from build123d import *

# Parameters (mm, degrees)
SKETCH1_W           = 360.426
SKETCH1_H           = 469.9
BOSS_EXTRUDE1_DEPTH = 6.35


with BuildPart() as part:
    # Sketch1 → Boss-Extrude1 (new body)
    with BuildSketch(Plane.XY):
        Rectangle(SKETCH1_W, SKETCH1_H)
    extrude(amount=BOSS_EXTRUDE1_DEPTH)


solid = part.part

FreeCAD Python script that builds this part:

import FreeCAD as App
import Part
import Sketcher

V = App.Vector
Q = App.Units.Quantity

doc = App.newDocument("Part")
body = doc.addObject("PartDesign::Body", "Body")

# Sketch on XY plane
sketch1 = body.newObject("Sketcher::SketchObject", "Sketch")
sketch1.AttachmentSupport = (doc.getObject("XY_Plane"), [""])
sketch1.MapMode = "FlatFace"
sketch1.addGeometry(Part.LineSegment(V(-180, 235, 0), V(-180, -235, 0)), False)
sketch1.addGeometry(Part.LineSegment(V(-180, -235, 0), V(180, -235, 0)), False)
sketch1.addGeometry(Part.LineSegment(V(180, -235, 0), V(180, 235, 0)), False)
sketch1.addGeometry(Part.LineSegment(V(180, 235, 0), V(-180, 235, 0)), False)
sketch1.addConstraint(Sketcher.Constraint("Coincident", 0, 2, 1, 1))
sketch1.addConstraint(Sketcher.Constraint("Coincident", 1, 2, 2, 1))
sketch1.addConstraint(Sketcher.Constraint("Coincident", 2, 2, 3, 1))
sketch1.addConstraint(Sketcher.Constraint("Coincident", 3, 2, 0, 1))
sketch1.addConstraint(Sketcher.Constraint("Vertical", 0))
sketch1.addConstraint(Sketcher.Constraint("Horizontal", 1))
sketch1.addConstraint(Sketcher.Constraint("Vertical", 2))
sketch1.addConstraint(Sketcher.Constraint("Horizontal", 3))
sketch1.addConstraint(Sketcher.Constraint("Symmetric", 0, 2, 2, 2, -1, 1))
sketch1.addConstraint(Sketcher.Constraint("DistanceY", 0, 2, 0, 1, Q("18.5 in")))
sketch1.addConstraint(Sketcher.Constraint("DistanceX", 1, 1, 1, 2, Q("14.19 in")))
pad1 = body.newObject("PartDesign::Pad", "Pad")
pad1.Profile = sketch1
pad1.Length = Q("0.25 in")

doc.recompute()
